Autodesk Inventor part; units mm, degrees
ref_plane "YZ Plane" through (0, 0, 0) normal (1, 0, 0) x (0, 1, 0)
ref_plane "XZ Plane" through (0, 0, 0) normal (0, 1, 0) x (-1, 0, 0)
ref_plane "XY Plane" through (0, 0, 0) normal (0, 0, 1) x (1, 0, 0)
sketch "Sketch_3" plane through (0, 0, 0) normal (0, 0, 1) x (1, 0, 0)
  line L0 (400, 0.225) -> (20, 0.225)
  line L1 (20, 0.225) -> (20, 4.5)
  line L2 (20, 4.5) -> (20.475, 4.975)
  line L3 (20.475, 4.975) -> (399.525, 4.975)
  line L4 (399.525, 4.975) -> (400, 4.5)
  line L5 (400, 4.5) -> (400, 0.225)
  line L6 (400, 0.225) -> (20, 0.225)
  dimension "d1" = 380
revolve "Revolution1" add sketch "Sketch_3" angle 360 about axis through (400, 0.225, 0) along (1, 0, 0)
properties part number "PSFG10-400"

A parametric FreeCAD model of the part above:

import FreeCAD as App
import Part
import Sketcher
from FreeCAD import Vector
Q = App.Units.Quantity

doc = App.newDocument("Part")
body = doc.addObject("PartDesign::Body", "Body")

# Sketch on XY plane
sketch1 = body.newObject("Sketcher::SketchObject", "Sketch")
sketch1.AttachmentSupport = (doc.getObject("XY_Plane"), [""])
sketch1.MapMode = "FlatFace"
sketch1.addGeometry([
    Part.LineSegment(Vector(20, 0.2, 0), Vector(400, 0.2, 0)),  # 0
    Part.LineSegment(Vector(400, 0.2, 0), Vector(400, 4.5, 0)),  # 1
    Part.LineSegment(Vector(400, 4.5, 0), Vector(399.5, 5, 0)),  # 2
    Part.LineSegment(Vector(399.5, 5, 0), Vector(20.5, 5, 0)),  # 3
    Part.LineSegment(Vector(20.5, 5, 0), Vector(20, 4.5, 0)),  # 4
    Part.LineSegment(Vector(20, 4.5, 0), Vector(20, 0.2, 0)),  # 5
], False)
sketch1.addGeometry(Part.LineSegment(Vector(20, 0.2, 0), Vector(400, 0.2, 0)), True)  # axis
sketch1.addConstraint([
    Sketcher.Constraint("Coincident", 0, 2, 1, 1),
    Sketcher.Constraint("Coincident", 1, 2, 2, 1),
    Sketcher.Constraint("Coincident", 2, 2, 3, 1),
    Sketcher.Constraint("Coincident", 3, 2, 4, 1),
    Sketcher.Constraint("Coincident", 4, 2, 5, 1),
    Sketcher.Constraint("Coincident", 5, 2, 0, 1),
    Sketcher.Constraint("Horizontal", 0),
    Sketcher.Constraint("Vertical", 1),
    Sketcher.Constraint("Horizontal", 3),
    Sketcher.Constraint("Vertical", 5),
    Sketcher.Constraint("Horizontal", 6),
    Sketcher.Constraint("Coincident", 6, 1, 5, 2),
    Sketcher.Constraint("Perpendicular", 2, 4),
    Sketcher.Constraint("Horizontal", 1, 2, 4, 2),
    Sketcher.Constraint("Vertical", 1, 2, 6, 2),
    Sketcher.Constraint("Equal", 2, 4),
    Sketcher.Constraint("DistanceX", 0, 1, 0, 2, Q("380 mm")),
    Sketcher.Constraint("DistanceX", -1, 1, 0, 2, Q("400 mm")),
    Sketcher.Constraint("DistanceX", 3, 2, 3, 1, Q("379.05 mm")),
    Sketcher.Constraint("DistanceY", -1, 1, 1, 2, Q("4.5 mm")),
    Sketcher.Constraint("DistanceY", 1, 1, 1, 2, Q("4.275 mm")),
])
revolution = body.newObject("PartDesign::Revolution", "Revolution")
revolution.Profile = sketch1
revolution.ReferenceAxis = (sketch1, ["Axis0"])
revolution.Angle = 360

doc.recompute()
